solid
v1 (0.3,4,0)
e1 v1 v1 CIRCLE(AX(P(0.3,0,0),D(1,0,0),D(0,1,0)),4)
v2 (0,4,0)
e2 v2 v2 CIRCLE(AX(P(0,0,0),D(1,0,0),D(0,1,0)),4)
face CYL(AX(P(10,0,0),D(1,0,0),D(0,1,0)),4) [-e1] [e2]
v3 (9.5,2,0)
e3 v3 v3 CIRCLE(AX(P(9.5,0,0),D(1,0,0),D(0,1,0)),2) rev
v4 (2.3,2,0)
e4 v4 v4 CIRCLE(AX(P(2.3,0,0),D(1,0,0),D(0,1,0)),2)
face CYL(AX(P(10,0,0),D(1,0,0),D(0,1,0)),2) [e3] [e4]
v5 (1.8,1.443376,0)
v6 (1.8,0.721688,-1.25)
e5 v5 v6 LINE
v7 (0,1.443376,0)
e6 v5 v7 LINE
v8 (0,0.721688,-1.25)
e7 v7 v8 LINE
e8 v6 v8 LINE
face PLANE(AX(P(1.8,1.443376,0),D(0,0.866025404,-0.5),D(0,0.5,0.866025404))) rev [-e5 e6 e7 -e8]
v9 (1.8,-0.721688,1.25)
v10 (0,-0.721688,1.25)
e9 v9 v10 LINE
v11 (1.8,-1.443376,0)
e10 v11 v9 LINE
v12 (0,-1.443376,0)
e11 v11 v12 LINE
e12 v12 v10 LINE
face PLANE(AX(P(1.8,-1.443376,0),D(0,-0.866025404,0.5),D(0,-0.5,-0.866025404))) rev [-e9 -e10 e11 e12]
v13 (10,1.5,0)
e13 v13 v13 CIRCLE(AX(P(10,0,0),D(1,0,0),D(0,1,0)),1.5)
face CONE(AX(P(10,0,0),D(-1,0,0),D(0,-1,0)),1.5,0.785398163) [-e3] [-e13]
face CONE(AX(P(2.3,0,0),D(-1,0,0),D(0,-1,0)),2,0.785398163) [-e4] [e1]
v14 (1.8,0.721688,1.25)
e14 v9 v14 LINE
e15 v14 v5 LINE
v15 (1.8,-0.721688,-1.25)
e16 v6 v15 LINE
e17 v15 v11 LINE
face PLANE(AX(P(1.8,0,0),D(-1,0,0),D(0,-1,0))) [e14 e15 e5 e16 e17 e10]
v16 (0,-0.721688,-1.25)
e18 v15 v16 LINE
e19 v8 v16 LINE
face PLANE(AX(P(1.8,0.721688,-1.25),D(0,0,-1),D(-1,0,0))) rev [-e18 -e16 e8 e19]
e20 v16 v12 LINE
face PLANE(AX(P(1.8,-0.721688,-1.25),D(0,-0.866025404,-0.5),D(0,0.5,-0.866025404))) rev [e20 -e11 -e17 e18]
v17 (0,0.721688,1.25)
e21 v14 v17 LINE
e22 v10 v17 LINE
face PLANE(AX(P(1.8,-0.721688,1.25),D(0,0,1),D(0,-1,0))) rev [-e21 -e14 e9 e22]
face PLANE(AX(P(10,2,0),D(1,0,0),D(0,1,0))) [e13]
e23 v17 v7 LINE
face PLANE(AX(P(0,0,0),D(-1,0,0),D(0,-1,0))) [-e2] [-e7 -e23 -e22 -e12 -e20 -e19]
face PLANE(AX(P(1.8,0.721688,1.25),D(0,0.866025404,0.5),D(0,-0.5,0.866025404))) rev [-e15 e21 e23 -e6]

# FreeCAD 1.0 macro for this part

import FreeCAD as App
import Part
import Sketcher

V = App.Vector
Q = App.Units.Quantity


def edges_at(feature, points):
    """Names of the edges that pass closest to the given points."""
    edges = feature.Shape.Edges
    near = lambda p: min(range(len(edges)), key=lambda i: edges[i].distToShape(Part.Vertex(*p))[0])
    return sorted({f"Edge{near(p) + 1}" for p in points})


def add_polygon(sketch, points):
    """Adds a closed chain of lines whose ends are joined by coincident constraints."""
    first, n = sketch.GeometryCount, len(points)
    for a, b in zip(points, points[1:] + points[:1]):
        sketch.addGeometry(Part.LineSegment(App.Vector(*a, 0), App.Vector(*b, 0)), False)
    for i in range(n):
        sketch.addConstraint(Sketcher.Constraint("Coincident", first + i, 2, first + (i + 1) % n, 1))

doc = App.newDocument("Part")
params = doc.addObject("Spreadsheet::Sheet", "Params")
for row, (alias, value) in enumerate([
    ("sketch1_width", "10 mm"),
    ("sketch1_height", "4 mm"),
    ("sketch1_height2", "2 mm"),
    ("sketch1_width2", "7.7 mm"),
    ("revolution_angle", "360 deg"),
    ("chamfer_size", "0.5 mm"),
    ("pocket1_length", "1.8 mm"),
], start=1):
    params.set(f"A{row}", alias)
    params.set(f"B{row}", "=" + value)
    params.setAlias(f"B{row}", alias)

body = doc.addObject("PartDesign::Body", "Body")

# Sketch on XY plane
sketch1 = body.newObject("Sketcher::SketchObject", "Sketch")
sketch1.AttachmentSupport = (doc.getObject("XY_Plane"), [""])
sketch1.MapMode = "FlatFace"
add_polygon(sketch1, [(0, 4), (0, 0), (10, 0), (10, 2), (2.3, 2), (0.3, 4)])  # lines 0-5
sketch1.addConstraint([
    Sketcher.Constraint("Vertical", 0),
    Sketcher.Constraint("Horizontal", 1),
    Sketcher.Constraint("Vertical", 2),
    Sketcher.Constraint("Horizontal", 3),
    Sketcher.Constraint("Horizontal", 5),
    Sketcher.Constraint("Coincident", 0, 2, -1, 1),
    Sketcher.Constraint("DistanceX", 1, 1, 1, 2, Q("10 mm")),
    Sketcher.Constraint("DistanceY", 0, 2, 0, 1, Q("4 mm")),
    Sketcher.Constraint("DistanceY", 2, 1, 2, 2, Q("2 mm")),
    Sketcher.Constraint("Angle", 4, Q("135 deg")),
    Sketcher.Constraint("DistanceX", 3, 2, 3, 1, Q("7.7 mm")),
])
sketch1.setExpression("Constraints[12]", "Params.sketch1_width")
sketch1.setExpression("Constraints[13]", "Params.sketch1_height")
sketch1.setExpression("Constraints[14]", "Params.sketch1_height2")
sketch1.setExpression("Constraints[16]", "Params.sketch1_width2")
revolution = body.newObject("PartDesign::Revolution", "Revolution")
revolution.Profile = sketch1
revolution.ReferenceAxis = (sketch1, ["H_Axis"])
revolution.setExpression("Angle", "Params.revolution_angle")
doc.recompute()

chamfer = body.newObject("PartDesign::Chamfer", "Chamfer")
chamfer.Base = (revolution, edges_at(revolution, [(10, -2, 0)]))
chamfer.setExpression("Size", "Params.chamfer_size")

# Sketch on YZ plane
sketch2 = body.newObject("Sketcher::SketchObject", "Sketch001")
sketch2.AttachmentSupport = (doc.getObject("YZ_Plane"), [""])
sketch2.MapMode = "FlatFace"
add_polygon(sketch2, [(1.443376, 0), (0.721688, -1.25), (-0.721688, -1.25), (-1.443376, 0), (-0.721688, 1.25), (0.721688, 1.25)])  # lines 0-5
sketch2.addConstraint([
    Sketcher.Constraint("Horizontal", 1),
    Sketcher.Constraint("Horizontal", 4),
    Sketcher.Constraint("Symmetric", 0, 2, 3, 2, -1, 1),
    Sketcher.Constraint("Symmetric", 2, 2, 5, 2, -1, 1),
    Sketcher.Constraint("PointOnObject", 2, 2, -1),
    Sketcher.Constraint("Parallel", 2, 5),
    Sketcher.Constraint("Vertical", 1, 2, 3, 2),
    Sketcher.Constraint("Angle", 0, Q("-120 deg")),
    Sketcher.Constraint("DistanceY", 1, 2, 3, 2, Q("2.5 mm")),
    Sketcher.Constraint("DistanceX", 1, 2, 1, 1, Q("1.443376 mm")),
])
pocket1 = body.newObject("PartDesign::Pocket", "Pocket")
pocket1.Profile = sketch2
pocket1.setExpression("Length", "Params.pocket1_length")
pocket1.Reversed = True

doc.recompute()
